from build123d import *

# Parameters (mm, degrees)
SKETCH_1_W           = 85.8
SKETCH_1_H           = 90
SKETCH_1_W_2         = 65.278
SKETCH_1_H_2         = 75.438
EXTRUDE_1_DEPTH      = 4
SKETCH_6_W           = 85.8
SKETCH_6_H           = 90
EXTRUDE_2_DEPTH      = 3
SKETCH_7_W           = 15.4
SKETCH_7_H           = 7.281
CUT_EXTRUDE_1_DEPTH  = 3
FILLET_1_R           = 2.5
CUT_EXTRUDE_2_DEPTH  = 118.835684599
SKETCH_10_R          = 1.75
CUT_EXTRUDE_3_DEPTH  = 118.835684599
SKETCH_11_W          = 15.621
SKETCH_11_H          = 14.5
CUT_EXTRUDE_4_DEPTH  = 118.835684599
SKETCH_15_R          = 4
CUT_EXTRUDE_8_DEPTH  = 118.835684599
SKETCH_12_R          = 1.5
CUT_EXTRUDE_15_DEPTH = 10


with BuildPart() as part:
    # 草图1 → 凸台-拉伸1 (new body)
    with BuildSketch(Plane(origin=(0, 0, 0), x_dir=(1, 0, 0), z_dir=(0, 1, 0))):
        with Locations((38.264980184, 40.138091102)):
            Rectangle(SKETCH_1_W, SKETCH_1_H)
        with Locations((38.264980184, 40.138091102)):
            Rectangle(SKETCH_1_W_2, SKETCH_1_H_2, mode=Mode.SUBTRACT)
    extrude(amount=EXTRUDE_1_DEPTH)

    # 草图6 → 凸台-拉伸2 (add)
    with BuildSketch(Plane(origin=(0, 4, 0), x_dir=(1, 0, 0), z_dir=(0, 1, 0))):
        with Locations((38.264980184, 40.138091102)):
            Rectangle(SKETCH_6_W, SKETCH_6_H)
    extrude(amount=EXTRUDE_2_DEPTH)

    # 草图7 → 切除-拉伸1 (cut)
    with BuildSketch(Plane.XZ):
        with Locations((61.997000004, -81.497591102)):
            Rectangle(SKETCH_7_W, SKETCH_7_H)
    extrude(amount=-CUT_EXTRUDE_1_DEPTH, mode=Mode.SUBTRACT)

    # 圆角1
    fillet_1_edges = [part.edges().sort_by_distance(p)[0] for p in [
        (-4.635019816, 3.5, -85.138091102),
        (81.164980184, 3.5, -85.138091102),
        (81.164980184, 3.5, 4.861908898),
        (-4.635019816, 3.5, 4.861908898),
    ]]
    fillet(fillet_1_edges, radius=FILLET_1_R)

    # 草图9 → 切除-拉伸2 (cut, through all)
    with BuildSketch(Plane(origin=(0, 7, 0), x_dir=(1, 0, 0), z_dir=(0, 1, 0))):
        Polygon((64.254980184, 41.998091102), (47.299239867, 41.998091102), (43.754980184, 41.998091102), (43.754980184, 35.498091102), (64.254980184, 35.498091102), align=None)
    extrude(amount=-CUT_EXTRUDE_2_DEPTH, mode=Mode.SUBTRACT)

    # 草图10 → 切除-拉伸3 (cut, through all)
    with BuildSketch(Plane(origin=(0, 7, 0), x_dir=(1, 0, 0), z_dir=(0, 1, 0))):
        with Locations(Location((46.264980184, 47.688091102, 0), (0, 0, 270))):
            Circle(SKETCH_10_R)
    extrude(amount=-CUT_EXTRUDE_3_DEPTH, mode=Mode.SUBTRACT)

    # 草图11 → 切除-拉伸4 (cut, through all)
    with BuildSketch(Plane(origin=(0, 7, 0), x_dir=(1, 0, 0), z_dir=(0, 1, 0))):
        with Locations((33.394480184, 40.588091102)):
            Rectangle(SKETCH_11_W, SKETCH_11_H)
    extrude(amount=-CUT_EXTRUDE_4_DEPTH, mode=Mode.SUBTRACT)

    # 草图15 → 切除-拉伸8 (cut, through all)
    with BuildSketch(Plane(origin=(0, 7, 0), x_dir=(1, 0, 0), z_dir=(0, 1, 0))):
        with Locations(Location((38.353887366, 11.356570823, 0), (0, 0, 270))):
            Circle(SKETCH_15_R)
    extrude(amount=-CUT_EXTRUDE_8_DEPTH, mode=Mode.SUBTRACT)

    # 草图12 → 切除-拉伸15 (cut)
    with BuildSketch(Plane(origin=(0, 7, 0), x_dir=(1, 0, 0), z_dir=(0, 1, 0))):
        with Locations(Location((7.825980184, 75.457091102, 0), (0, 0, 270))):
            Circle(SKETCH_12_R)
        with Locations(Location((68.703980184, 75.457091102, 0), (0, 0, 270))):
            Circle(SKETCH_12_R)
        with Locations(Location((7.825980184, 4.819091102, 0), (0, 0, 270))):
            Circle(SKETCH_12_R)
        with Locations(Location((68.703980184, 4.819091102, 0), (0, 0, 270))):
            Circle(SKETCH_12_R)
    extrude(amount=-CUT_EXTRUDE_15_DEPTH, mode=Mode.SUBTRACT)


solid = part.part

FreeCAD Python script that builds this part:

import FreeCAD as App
import Part
import Sketcher

V = App.Vector


def edges_at(feature, points):
    """Names of the edges that pass closest to the given points."""
    edges = feature.Shape.Edges
    near = lambda p: min(range(len(edges)), key=lambda i: edges[i].distToShape(Part.Vertex(*p))[0])
    return sorted({f"Edge{near(p) + 1}" for p in points})

doc = App.newDocument("Part")
body = doc.addObject("PartDesign::Body", "Body")

# Sketch on XZ plane
sketch1 = doc.addObject("Sketcher::SketchObject", "Sketch")
body.addObject(sketch1)
sketch1.AttachmentSupport = (doc.XZ_Plane, [""])
sketch1.MapMode = "FlatFace"
sketch1.addGeometry([
    Part.LineSegment(V(-4.63502, -85.138091, 0), V(-4.63502, 4.861909, 0)),  # 0
    Part.LineSegment(V(-4.63502, 4.861909, 0), V(81.16498, 4.861909, 0)),  # 1
    Part.LineSegment(V(81.16498, 4.861909, 0), V(81.16498, -85.138091, 0)),  # 2
    Part.LineSegment(V(81.16498, -85.138091, 0), V(-4.63502, -85.138091, 0)),  # 3
    Part.LineSegment(V(70.90398, -2.419091, 0), V(5.62598, -2.419091, 0)),  # 4
    Part.LineSegment(V(5.62598, -2.419091, 0), V(5.62598, -77.857091, 0)),  # 5
    Part.LineSegment(V(5.62598, -77.857091, 0), V(70.90398, -77.857091, 0)),  # 6
    Part.LineSegment(V(70.90398, -77.857091, 0), V(70.90398, -2.419091, 0)),  # 7
], False)
sketch1.addConstraint([
    Sketcher.Constraint("Coincident", 0, 2, 1, 1),
    Sketcher.Constraint("Coincident", 1, 2, 2, 1),
    Sketcher.Constraint("Coincident", 2, 2, 3, 1),
    Sketcher.Constraint("Coincident", 3, 2, 0, 1),
    Sketcher.Constraint("Coincident", 4, 2, 5, 1),
    Sketcher.Constraint("Coincident", 5, 2, 6, 1),
    Sketcher.Constraint("Coincident", 6, 2, 7, 1),
    Sketcher.Constraint("Coincident", 7, 2, 4, 1),
    Sketcher.Constraint("Vertical", 0),
    Sketcher.Constraint("Horizontal", 1),
    Sketcher.Constraint("Vertical", 2),
    Sketcher.Constraint("Horizontal", 3),
    Sketcher.Constraint("Horizontal", 4),
    Sketcher.Constraint("Vertical", 5),
    Sketcher.Constraint("Horizontal", 6),
    Sketcher.Constraint("Vertical", 7),
    Sketcher.Constraint("DistanceY", 0, 1, 0, 2, 90.0),
    Sketcher.Constraint("DistanceX", 1, 1, 1, 2, 85.8),
    Sketcher.Constraint("DistanceX", 4, 2, 4, 1, 65.278),
    Sketcher.Constraint("DistanceY", 5, 2, 5, 1, 75.438),
    Sketcher.Constraint("DistanceX", 0, 2, 4, 2, 10.261),
    Sketcher.Constraint("DistanceY", 4, 2, 0, 2, 7.281),
    Sketcher.Constraint("DistanceX", 0, 2, -1, 1, 4.63502),
    Sketcher.Constraint("DistanceY", -1, 1, 0, 2, 4.861909),
])
pad1 = doc.addObject("PartDesign::Pad", "Pad")
body.addObject(pad1)
pad1.Profile = sketch1
pad1.Length = 4
pad1.Reversed = True

# Sketch on XZ plane
sketch2 = doc.addObject("Sketcher::SketchObject", "Sketch001")
body.addObject(sketch2)
sketch2.AttachmentSupport = (doc.XZ_Plane, [""])
sketch2.MapMode = "FlatFace"
sketch2.AttachmentOffset = App.Placement(V(0, 0, -4), App.Rotation())
sketch2.addGeometry([
    Part.LineSegment(V(-4.63502, -85.138091, 0), V(-4.63502, 4.861909, 0)),
    Part.LineSegment(V(-4.63502, 4.861909, 0), V(81.16498, 4.861909, 0)),
    Part.LineSegment(V(81.16498, 4.861909, 0), V(81.16498, -85.138091, 0)),
    Part.LineSegment(V(81.16498, -85.138091, 0), V(-4.63502, -85.138091, 0)),
], False)
sketch2.addConstraint([
    Sketcher.Constraint("Coincident", 0, 2, 1, 1),
    Sketcher.Constraint("Coincident", 1, 2, 2, 1),
    Sketcher.Constraint("Coincident", 2, 2, 3, 1),
    Sketcher.Constraint("Coincident", 3, 2, 0, 1),
    Sketcher.Constraint("Vertical", 0),
    Sketcher.Constraint("Horizontal", 1),
    Sketcher.Constraint("Vertical", 2),
    Sketcher.Constraint("Horizontal", 3),
    Sketcher.Constraint("DistanceY", 0, 1, 0, 2, 90.0),
    Sketcher.Constraint("DistanceX", 1, 1, 1, 2, 85.8),
    Sketcher.Constraint("DistanceX", 0, 2, -1, 1, 4.63502),
    Sketcher.Constraint("DistanceY", -1, 1, 0, 2, 4.861909),
])
pad2 = doc.addObject("PartDesign::Pad", "Pad001")
body.addObject(pad2)
pad2.Profile = sketch2
pad2.Length = 3
pad2.Reversed = True

# Sketch on XZ plane
sketch3 = doc.addObject("Sketcher::SketchObject", "Sketch002")
body.addObject(sketch3)
sketch3.AttachmentSupport = (doc.XZ_Plane, [""])
sketch3.MapMode = "FlatFace"
sketch3.addGeometry([
    Part.LineSegment(V(54.297, -77.857091, 0), V(54.297, -85.138091, 0)),
    Part.LineSegment(V(54.297, -85.138091, 0), V(69.697, -85.138091, 0)),
    Part.LineSegment(V(69.697, -85.138091, 0), V(69.697, -77.857091, 0)),
    Part.LineSegment(V(69.697, -77.857091, 0), V(54.297, -77.857091, 0)),
], False)
sketch3.addConstraint([
    Sketcher.Constraint("Coincident", 0, 2, 1, 1),
    Sketcher.Constraint("Coincident", 1, 2, 2, 1),
    Sketcher.Constraint("Coincident", 2, 2, 3, 1),
    Sketcher.Constraint("Coincident", 3, 2, 0, 1),
    Sketcher.Constraint("Vertical", 0),
    Sketcher.Constraint("Horizontal", 1),
    Sketcher.Constraint("Vertical", 2),
    Sketcher.Constraint("Horizontal", 3),
    Sketcher.Constraint("DistanceX", 1, 1, 1, 2, 15.4),
    Sketcher.Constraint("DistanceY", 0, 2, 0, 1, 7.281),
    Sketcher.Constraint("DistanceX", -1, 1, 0, 2, 54.297),
    Sketcher.Constraint("DistanceY", 0, 2, -1, 1, 85.138091),
])
pocket1 = doc.addObject("PartDesign::Pocket", "Pocket")
body.addObject(pocket1)
pocket1.Profile = sketch3
pocket1.Length = 3
doc.recompute()

fillet = doc.addObject("PartDesign::Fillet", "Fillet")
body.addObject(fillet)
fillet.Base = (pocket1, edges_at(pocket1, [
    (-4.635, 3.5, -85.138),
    (81.165, 3.5, -85.138),
    (81.165, 3.5, 4.862),
    (-4.635, 3.5, 4.862),
]))
fillet.Radius = 2.5

# Sketch on XZ plane
sketch4 = doc.addObject("Sketcher::SketchObject", "Sketch003")
body.addObject(sketch4)
sketch4.AttachmentSupport = (doc.XZ_Plane, [""])
sketch4.MapMode = "FlatFace"
sketch4.AttachmentOffset = App.Placement(V(0, 0, -7), App.Rotation())
sketch4.addGeometry([
    Part.LineSegment(V(64.25498, -41.998091, 0), V(43.75498, -41.998091, 0)),
    Part.LineSegment(V(43.75498, -41.998091, 0), V(43.75498, -35.498091, 0)),
    Part.LineSegment(V(43.75498, -35.498091, 0), V(64.25498, -35.498091, 0)),
    Part.LineSegment(V(64.25498, -35.498091, 0), V(64.25498, -41.998091, 0)),
], False)
sketch4.addConstraint([
    Sketcher.Constraint("Coincident", 0, 2, 1, 1),
    Sketcher.Constraint("Coincident", 1, 2, 2, 1),
    Sketcher.Constraint("Coincident", 2, 2, 3, 1),
    Sketcher.Constraint("Coincident", 3, 2, 0, 1),
    Sketcher.Constraint("Horizontal", 0),
    Sketcher.Constraint("Vertical", 1),
    Sketcher.Constraint("Horizontal", 2),
    Sketcher.Constraint("Vertical", 3),
    Sketcher.Constraint("DistanceX", 0, 2, 0, 1, 20.5),
    Sketcher.Constraint("DistanceY", 1, 1, 1, 2, 6.5),
    Sketcher.Constraint("DistanceX", -1, 1, 0, 2, 43.75498),
    Sketcher.Constraint("DistanceY", 0, 2, -1, 1, 41.998091),
])
pocket2 = doc.addObject("PartDesign::Pocket", "Pocket001")
body.addObject(pocket2)
pocket2.Profile = sketch4
pocket2.Type = "ThroughAll"
pocket2.Reversed = True

# Sketch on XZ plane
sketch5 = doc.addObject("Sketcher::SketchObject", "Sketch004")
body.addObject(sketch5)
sketch5.AttachmentSupport = (doc.XZ_Plane, [""])
sketch5.MapMode = "FlatFace"
sketch5.AttachmentOffset = App.Placement(V(0, 0, -7), App.Rotation())
sketch5.addGeometry(Part.Circle(V(46.26498, -47.688091, 0), V(0, 0, 1), 1.75), False)
sketch5.addConstraint([
    Sketcher.Constraint("Diameter", 0, 3.5),
    Sketcher.Constraint("DistanceX", -1, 1, 0, 3, 46.26498),
    Sketcher.Constraint("DistanceY", 0, 3, -1, 1, 47.688091),
])
pocket3 = doc.addObject("PartDesign::Pocket", "Pocket002")
body.addObject(pocket3)
pocket3.Profile = sketch5
pocket3.Type = "ThroughAll"
pocket3.Reversed = True

# Sketch on XZ plane
sketch6 = doc.addObject("Sketcher::SketchObject", "Sketch005")
body.addObject(sketch6)
sketch6.AttachmentSupport = (doc.XZ_Plane, [""])
sketch6.MapMode = "FlatFace"
sketch6.AttachmentOffset = App.Placement(V(0, 0, -7), App.Rotation())
sketch6.addGeometry([
    Part.LineSegment(V(25.58398, -47.838091, 0), V(25.58398, -33.338091, 0)),
    Part.LineSegment(V(25.58398, -33.338091, 0), V(41.20498, -33.338091, 0)),
    Part.LineSegment(V(41.20498, -33.338091, 0), V(41.20498, -47.838091, 0)),
    Part.LineSegment(V(41.20498, -47.838091, 0), V(25.58398, -47.838091, 0)),
], False)
sketch6.addConstraint([
    Sketcher.Constraint("Coincident", 0, 2, 1, 1),
    Sketcher.Constraint("Coincident", 1, 2, 2, 1),
    Sketcher.Constraint("Coincident", 2, 2, 3, 1),
    Sketcher.Constraint("Coincident", 3, 2, 0, 1),
    Sketcher.Constraint("Vertical", 0),
    Sketcher.Constraint("Horizontal", 1),
    Sketcher.Constraint("Vertical", 2),
    Sketcher.Constraint("Horizontal", 3),
    Sketcher.Constraint("DistanceY", 0, 1, 0, 2, 14.5),
    Sketcher.Constraint("DistanceX", 1, 1, 1, 2, 15.621),
    Sketcher.Constraint("DistanceX", -1, 1, 0, 2, 25.58398),
    Sketcher.Constraint("DistanceY", 0, 2, -1, 1, 33.338091),
])
pocket4 = doc.addObject("PartDesign::Pocket", "Pocket003")
body.addObject(pocket4)
pocket4.Profile = sketch6
pocket4.Type = "ThroughAll"
pocket4.Reversed = True

# Sketch on XZ plane
sketch7 = doc.addObject("Sketcher::SketchObject", "Sketch006")
body.addObject(sketch7)
sketch7.AttachmentSupport = (doc.XZ_Plane, [""])
sketch7.MapMode = "FlatFace"
sketch7.AttachmentOffset = App.Placement(V(0, 0, -7), App.Rotation())
sketch7.addGeometry(Part.Circle(V(38.353887, -11.356571, 0), V(0, 0, 1), 4), False)
sketch7.addConstraint([
    Sketcher.Constraint("Diameter", 0, 8.0),
    Sketcher.Constraint("DistanceY", 0, 3, -1, 1, 11.356571),
    Sketcher.Constraint("DistanceX", -1, 1, 0, 3, 38.353887),
])
pocket5 = doc.addObject("PartDesign::Pocket", "Pocket004")
body.addObject(pocket5)
pocket5.Profile = sketch7
pocket5.Type = "ThroughAll"
pocket5.Reversed = True

# Sketch on XZ plane
sketch8 = doc.addObject("Sketcher::SketchObject", "Sketch007")
body.addObject(sketch8)
sketch8.AttachmentSupport = (doc.XZ_Plane, [""])
sketch8.MapMode = "FlatFace"
sketch8.AttachmentOffset = App.Placement(V(0, 0, -7), App.Rotation())
sketch8.addGeometry([
    Part.Circle(V(7.82598, -75.457091, 0), V(0, 0, 1), 1.5),
    Part.Circle(V(68.70398, -75.457091, 0), V(0, 0, 1), 1.5),
    Part.Circle(V(7.82598, -4.819091, 0), V(0, 0, 1), 1.5),
    Part.Circle(V(68.70398, -4.819091, 0), V(0, 0, 1), 1.5),
], False)
sketch8.addConstraint([
    Sketcher.Constraint("Equal", 0, 1),
    Sketcher.Constraint("Equal", 1, 2),
    Sketcher.Constraint("Equal", 2, 3),
    Sketcher.Constraint("Horizontal", 0, 3, 1, 3),
    Sketcher.Constraint("Horizontal", 2, 3, 3, 3),
    Sketcher.Constraint("Vertical", 0, 3, 2, 3),
    Sketcher.Constraint("Vertical", 1, 3, 3, 3),
    Sketcher.Constraint("Diameter", 0, 3.0),
    Sketcher.Constraint("DistanceX", 0, 3, 1, 3, 60.878),
    Sketcher.Constraint("DistanceY", 0, 3, 2, 3, 70.638),
    Sketcher.Constraint("DistanceX", -1, 1, 0, 3, 7.82598),
    Sketcher.Constraint("DistanceY", 0, 3, -1, 1, 75.457091),
])
pocket6 = doc.addObject("PartDesign::Pocket", "Pocket005")
body.addObject(pocket6)
pocket6.Profile = sketch8
pocket6.Length = 10
pocket6.Reversed = True

doc.recompute()
